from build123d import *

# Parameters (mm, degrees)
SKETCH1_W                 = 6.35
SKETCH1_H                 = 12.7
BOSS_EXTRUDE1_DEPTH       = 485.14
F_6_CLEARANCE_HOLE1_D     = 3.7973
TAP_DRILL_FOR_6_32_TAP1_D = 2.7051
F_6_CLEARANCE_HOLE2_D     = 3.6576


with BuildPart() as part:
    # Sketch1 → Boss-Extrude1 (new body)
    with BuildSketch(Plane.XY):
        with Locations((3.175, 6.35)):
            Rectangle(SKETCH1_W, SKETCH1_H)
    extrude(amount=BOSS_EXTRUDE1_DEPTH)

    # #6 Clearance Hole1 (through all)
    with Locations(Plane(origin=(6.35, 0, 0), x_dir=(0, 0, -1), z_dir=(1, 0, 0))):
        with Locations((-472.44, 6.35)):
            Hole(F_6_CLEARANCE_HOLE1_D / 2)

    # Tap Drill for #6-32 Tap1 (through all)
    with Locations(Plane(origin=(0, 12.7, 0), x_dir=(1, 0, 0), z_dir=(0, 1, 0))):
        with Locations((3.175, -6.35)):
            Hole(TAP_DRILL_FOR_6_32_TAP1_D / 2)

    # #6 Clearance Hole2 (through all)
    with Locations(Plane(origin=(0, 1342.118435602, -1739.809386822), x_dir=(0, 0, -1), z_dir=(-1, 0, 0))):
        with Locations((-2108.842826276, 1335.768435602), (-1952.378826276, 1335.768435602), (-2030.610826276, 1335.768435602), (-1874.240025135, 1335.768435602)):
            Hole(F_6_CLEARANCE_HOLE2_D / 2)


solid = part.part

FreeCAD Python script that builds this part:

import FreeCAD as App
import Part
import Sketcher

V = App.Vector
Q = App.Units.Quantity


def add_polygon(sketch, points):
    """Adds a closed chain of lines whose ends are joined by coincident constraints."""
    first, n = sketch.GeometryCount, len(points)
    for a, b in zip(points, points[1:] + points[:1]):
        sketch.addGeometry(Part.LineSegment(App.Vector(*a, 0), App.Vector(*b, 0)), False)
    for i in range(n):
        sketch.addConstraint(Sketcher.Constraint("Coincident", first + i, 2, first + (i + 1) % n, 1))

doc = App.newDocument("Part")
params = doc.addObject("Spreadsheet::Sheet", "Params")
for row, (alias, value) in enumerate([
    ("sketch1_height", "0.5 in"),
    ("sketch1_width", "0.25 in"),
    ("pad1_length", "19.1 in"),
    ("hole_diameter", "0.1495 in"),
    ("hole2_diameter", "0.1065 in"),
    ("sketch4_diameter", "0.144 in"),
    ("hole3_diameter", "0.144 in"),
], start=1):
    params.set(f"A{row}", alias)
    params.set(f"B{row}", "=" + value)
    params.setAlias(f"B{row}", alias)

body = doc.addObject("PartDesign::Body", "Body")

# Sketch on XY plane
sketch1 = body.newObject("Sketcher::SketchObject", "Sketch")
sketch1.AttachmentSupport = (doc.getObject("XY_Plane"), [""])
sketch1.MapMode = "FlatFace"
add_polygon(sketch1, [(0, 12.7), (0, 0), (6.35, 0), (6.35, 12.7)])  # lines 0-3
sketch1.addConstraint([
    Sketcher.Constraint("Vertical", 0),
    Sketcher.Constraint("Horizontal", 1),
    Sketcher.Constraint("Vertical", 2),
    Sketcher.Constraint("Horizontal", 3),
    Sketcher.Constraint("Coincident", 0, 2, -1, 1),
    Sketcher.Constraint("DistanceY", 0, 2, 0, 1, Q("0.5 in")),
    Sketcher.Constraint("DistanceX", 1, 1, 1, 2, Q("0.25 in")),
])
sketch1.setExpression("Constraints[9]", "Params.sketch1_height")
sketch1.setExpression("Constraints[10]", "Params.sketch1_width")
pad1 = body.newObject("PartDesign::Pad", "Pad")
pad1.Profile = sketch1
pad1.setExpression("Length", "Params.pad1_length")

# Sketch on YZ plane
sketch2 = body.newObject("Sketcher::SketchObject", "Sketch001")
sketch2.AttachmentSupport = (doc.getObject("YZ_Plane"), [""])
sketch2.MapMode = "FlatFace"
sketch2.AttachmentOffset = App.Placement(V(0, 0, 0.25 * 25.4), App.Rotation())
sketch2.addGeometry(Part.Circle(V(6.35, 472.44, 0), V(0, 0, 1), 1.89865), False)
sketch2.addConstraint([
    Sketcher.Constraint("Diameter", 0, Q("0.1495 in")),
    Sketcher.Constraint("DistanceY", -1, 1, 0, 3, Q("18.6 in")),
    Sketcher.Constraint("DistanceX", -1, 1, 0, 3, Q("0.25 in")),
])
doc.recompute()
hole = body.newObject("PartDesign::Hole", "Hole")
hole.Profile = sketch2
hole.ThreadType = "None"
hole.setExpression("Diameter", "Params.hole_diameter")
hole.DepthType = "ThroughAll"

# Sketch on XZ plane
sketch3 = body.newObject("Sketcher::SketchObject", "Sketch002")
sketch3.AttachmentSupport = (doc.getObject("XZ_Plane"), [""])
sketch3.MapMode = "FlatFace"
sketch3.AttachmentOffset = App.Placement(V(0, 0, -0.5 * 25.4), App.Rotation())
sketch3.addGeometry(Part.Circle(V(3.175, 6.35, 0), V(0, 0, 1), 1.35255), False)
sketch3.addConstraint([
    Sketcher.Constraint("Diameter", 0, Q("0.1065 in")),
    Sketcher.Constraint("DistanceY", -1, 1, 0, 3, Q("0.25 in")),
    Sketcher.Constraint("DistanceX", -1, 1, 0, 3, Q("0.125 in")),
])
doc.recompute()
hole2 = body.newObject("PartDesign::Hole", "Hole001")
hole2.Profile = sketch3
hole2.ThreadType = "None"
hole2.setExpression("Diameter", "Params.hole2_diameter")
hole2.DepthType = "ThroughAll"
hole2.Reversed = True

# Sketch on YZ plane
sketch4 = body.newObject("Sketcher::SketchObject", "Sketch003")
sketch4.AttachmentSupport = (doc.getObject("YZ_Plane"), [""])
sketch4.MapMode = "FlatFace"
sketch4.addGeometry([
    Part.Circle(V(6.35, 369.033439, 0), V(0, 0, 1), 1.8288),
    Part.Circle(V(6.35, 212.569439, 0), V(0, 0, 1), 1.8288),
    Part.Circle(V(6.35, 290.801439, 0), V(0, 0, 1), 1.8288),
    Part.Circle(V(6.35, 134.430638, 0), V(0, 0, 1), 1.8288),
], False)
sketch4.addConstraint([
    Sketcher.Constraint("Equal", 0, 1),
    Sketcher.Constraint("Equal", 1, 2),
    Sketcher.Constraint("Equal", 2, 3),
    Sketcher.Constraint("Vertical", 0, 3, 1, 3),
    Sketcher.Constraint("Vertical", 1, 3, 2, 3),
    Sketcher.Constraint("Vertical", 2, 3, 3, 3),
    Sketcher.Constraint("Diameter", 0, Q("0.144 in")),
    Sketcher.Constraint("DistanceX", -1, 1, 0, 3, Q("0.25 in")),
    Sketcher.Constraint("DistanceY", 1, 3, 0, 3, Q("6.16 in")),
    Sketcher.Constraint("DistanceY", 1, 3, 2, 3, Q("3.08 in")),
    Sketcher.Constraint("DistanceY", 3, 3, 1, 3, 78.138801),
    Sketcher.Constraint("DistanceY", -1, 1, 0, 3, 369.033439),
])
sketch4.setExpression("Constraints[6]", "Params.sketch4_diameter")
doc.recompute()
hole3 = body.newObject("PartDesign::Hole", "Hole002")
hole3.Profile = sketch4
hole3.ThreadType = "None"
hole3.setExpression("Diameter", "Params.hole3_diameter")
hole3.DepthType = "ThroughAll"
hole3.Reversed = True

doc.recompute()
